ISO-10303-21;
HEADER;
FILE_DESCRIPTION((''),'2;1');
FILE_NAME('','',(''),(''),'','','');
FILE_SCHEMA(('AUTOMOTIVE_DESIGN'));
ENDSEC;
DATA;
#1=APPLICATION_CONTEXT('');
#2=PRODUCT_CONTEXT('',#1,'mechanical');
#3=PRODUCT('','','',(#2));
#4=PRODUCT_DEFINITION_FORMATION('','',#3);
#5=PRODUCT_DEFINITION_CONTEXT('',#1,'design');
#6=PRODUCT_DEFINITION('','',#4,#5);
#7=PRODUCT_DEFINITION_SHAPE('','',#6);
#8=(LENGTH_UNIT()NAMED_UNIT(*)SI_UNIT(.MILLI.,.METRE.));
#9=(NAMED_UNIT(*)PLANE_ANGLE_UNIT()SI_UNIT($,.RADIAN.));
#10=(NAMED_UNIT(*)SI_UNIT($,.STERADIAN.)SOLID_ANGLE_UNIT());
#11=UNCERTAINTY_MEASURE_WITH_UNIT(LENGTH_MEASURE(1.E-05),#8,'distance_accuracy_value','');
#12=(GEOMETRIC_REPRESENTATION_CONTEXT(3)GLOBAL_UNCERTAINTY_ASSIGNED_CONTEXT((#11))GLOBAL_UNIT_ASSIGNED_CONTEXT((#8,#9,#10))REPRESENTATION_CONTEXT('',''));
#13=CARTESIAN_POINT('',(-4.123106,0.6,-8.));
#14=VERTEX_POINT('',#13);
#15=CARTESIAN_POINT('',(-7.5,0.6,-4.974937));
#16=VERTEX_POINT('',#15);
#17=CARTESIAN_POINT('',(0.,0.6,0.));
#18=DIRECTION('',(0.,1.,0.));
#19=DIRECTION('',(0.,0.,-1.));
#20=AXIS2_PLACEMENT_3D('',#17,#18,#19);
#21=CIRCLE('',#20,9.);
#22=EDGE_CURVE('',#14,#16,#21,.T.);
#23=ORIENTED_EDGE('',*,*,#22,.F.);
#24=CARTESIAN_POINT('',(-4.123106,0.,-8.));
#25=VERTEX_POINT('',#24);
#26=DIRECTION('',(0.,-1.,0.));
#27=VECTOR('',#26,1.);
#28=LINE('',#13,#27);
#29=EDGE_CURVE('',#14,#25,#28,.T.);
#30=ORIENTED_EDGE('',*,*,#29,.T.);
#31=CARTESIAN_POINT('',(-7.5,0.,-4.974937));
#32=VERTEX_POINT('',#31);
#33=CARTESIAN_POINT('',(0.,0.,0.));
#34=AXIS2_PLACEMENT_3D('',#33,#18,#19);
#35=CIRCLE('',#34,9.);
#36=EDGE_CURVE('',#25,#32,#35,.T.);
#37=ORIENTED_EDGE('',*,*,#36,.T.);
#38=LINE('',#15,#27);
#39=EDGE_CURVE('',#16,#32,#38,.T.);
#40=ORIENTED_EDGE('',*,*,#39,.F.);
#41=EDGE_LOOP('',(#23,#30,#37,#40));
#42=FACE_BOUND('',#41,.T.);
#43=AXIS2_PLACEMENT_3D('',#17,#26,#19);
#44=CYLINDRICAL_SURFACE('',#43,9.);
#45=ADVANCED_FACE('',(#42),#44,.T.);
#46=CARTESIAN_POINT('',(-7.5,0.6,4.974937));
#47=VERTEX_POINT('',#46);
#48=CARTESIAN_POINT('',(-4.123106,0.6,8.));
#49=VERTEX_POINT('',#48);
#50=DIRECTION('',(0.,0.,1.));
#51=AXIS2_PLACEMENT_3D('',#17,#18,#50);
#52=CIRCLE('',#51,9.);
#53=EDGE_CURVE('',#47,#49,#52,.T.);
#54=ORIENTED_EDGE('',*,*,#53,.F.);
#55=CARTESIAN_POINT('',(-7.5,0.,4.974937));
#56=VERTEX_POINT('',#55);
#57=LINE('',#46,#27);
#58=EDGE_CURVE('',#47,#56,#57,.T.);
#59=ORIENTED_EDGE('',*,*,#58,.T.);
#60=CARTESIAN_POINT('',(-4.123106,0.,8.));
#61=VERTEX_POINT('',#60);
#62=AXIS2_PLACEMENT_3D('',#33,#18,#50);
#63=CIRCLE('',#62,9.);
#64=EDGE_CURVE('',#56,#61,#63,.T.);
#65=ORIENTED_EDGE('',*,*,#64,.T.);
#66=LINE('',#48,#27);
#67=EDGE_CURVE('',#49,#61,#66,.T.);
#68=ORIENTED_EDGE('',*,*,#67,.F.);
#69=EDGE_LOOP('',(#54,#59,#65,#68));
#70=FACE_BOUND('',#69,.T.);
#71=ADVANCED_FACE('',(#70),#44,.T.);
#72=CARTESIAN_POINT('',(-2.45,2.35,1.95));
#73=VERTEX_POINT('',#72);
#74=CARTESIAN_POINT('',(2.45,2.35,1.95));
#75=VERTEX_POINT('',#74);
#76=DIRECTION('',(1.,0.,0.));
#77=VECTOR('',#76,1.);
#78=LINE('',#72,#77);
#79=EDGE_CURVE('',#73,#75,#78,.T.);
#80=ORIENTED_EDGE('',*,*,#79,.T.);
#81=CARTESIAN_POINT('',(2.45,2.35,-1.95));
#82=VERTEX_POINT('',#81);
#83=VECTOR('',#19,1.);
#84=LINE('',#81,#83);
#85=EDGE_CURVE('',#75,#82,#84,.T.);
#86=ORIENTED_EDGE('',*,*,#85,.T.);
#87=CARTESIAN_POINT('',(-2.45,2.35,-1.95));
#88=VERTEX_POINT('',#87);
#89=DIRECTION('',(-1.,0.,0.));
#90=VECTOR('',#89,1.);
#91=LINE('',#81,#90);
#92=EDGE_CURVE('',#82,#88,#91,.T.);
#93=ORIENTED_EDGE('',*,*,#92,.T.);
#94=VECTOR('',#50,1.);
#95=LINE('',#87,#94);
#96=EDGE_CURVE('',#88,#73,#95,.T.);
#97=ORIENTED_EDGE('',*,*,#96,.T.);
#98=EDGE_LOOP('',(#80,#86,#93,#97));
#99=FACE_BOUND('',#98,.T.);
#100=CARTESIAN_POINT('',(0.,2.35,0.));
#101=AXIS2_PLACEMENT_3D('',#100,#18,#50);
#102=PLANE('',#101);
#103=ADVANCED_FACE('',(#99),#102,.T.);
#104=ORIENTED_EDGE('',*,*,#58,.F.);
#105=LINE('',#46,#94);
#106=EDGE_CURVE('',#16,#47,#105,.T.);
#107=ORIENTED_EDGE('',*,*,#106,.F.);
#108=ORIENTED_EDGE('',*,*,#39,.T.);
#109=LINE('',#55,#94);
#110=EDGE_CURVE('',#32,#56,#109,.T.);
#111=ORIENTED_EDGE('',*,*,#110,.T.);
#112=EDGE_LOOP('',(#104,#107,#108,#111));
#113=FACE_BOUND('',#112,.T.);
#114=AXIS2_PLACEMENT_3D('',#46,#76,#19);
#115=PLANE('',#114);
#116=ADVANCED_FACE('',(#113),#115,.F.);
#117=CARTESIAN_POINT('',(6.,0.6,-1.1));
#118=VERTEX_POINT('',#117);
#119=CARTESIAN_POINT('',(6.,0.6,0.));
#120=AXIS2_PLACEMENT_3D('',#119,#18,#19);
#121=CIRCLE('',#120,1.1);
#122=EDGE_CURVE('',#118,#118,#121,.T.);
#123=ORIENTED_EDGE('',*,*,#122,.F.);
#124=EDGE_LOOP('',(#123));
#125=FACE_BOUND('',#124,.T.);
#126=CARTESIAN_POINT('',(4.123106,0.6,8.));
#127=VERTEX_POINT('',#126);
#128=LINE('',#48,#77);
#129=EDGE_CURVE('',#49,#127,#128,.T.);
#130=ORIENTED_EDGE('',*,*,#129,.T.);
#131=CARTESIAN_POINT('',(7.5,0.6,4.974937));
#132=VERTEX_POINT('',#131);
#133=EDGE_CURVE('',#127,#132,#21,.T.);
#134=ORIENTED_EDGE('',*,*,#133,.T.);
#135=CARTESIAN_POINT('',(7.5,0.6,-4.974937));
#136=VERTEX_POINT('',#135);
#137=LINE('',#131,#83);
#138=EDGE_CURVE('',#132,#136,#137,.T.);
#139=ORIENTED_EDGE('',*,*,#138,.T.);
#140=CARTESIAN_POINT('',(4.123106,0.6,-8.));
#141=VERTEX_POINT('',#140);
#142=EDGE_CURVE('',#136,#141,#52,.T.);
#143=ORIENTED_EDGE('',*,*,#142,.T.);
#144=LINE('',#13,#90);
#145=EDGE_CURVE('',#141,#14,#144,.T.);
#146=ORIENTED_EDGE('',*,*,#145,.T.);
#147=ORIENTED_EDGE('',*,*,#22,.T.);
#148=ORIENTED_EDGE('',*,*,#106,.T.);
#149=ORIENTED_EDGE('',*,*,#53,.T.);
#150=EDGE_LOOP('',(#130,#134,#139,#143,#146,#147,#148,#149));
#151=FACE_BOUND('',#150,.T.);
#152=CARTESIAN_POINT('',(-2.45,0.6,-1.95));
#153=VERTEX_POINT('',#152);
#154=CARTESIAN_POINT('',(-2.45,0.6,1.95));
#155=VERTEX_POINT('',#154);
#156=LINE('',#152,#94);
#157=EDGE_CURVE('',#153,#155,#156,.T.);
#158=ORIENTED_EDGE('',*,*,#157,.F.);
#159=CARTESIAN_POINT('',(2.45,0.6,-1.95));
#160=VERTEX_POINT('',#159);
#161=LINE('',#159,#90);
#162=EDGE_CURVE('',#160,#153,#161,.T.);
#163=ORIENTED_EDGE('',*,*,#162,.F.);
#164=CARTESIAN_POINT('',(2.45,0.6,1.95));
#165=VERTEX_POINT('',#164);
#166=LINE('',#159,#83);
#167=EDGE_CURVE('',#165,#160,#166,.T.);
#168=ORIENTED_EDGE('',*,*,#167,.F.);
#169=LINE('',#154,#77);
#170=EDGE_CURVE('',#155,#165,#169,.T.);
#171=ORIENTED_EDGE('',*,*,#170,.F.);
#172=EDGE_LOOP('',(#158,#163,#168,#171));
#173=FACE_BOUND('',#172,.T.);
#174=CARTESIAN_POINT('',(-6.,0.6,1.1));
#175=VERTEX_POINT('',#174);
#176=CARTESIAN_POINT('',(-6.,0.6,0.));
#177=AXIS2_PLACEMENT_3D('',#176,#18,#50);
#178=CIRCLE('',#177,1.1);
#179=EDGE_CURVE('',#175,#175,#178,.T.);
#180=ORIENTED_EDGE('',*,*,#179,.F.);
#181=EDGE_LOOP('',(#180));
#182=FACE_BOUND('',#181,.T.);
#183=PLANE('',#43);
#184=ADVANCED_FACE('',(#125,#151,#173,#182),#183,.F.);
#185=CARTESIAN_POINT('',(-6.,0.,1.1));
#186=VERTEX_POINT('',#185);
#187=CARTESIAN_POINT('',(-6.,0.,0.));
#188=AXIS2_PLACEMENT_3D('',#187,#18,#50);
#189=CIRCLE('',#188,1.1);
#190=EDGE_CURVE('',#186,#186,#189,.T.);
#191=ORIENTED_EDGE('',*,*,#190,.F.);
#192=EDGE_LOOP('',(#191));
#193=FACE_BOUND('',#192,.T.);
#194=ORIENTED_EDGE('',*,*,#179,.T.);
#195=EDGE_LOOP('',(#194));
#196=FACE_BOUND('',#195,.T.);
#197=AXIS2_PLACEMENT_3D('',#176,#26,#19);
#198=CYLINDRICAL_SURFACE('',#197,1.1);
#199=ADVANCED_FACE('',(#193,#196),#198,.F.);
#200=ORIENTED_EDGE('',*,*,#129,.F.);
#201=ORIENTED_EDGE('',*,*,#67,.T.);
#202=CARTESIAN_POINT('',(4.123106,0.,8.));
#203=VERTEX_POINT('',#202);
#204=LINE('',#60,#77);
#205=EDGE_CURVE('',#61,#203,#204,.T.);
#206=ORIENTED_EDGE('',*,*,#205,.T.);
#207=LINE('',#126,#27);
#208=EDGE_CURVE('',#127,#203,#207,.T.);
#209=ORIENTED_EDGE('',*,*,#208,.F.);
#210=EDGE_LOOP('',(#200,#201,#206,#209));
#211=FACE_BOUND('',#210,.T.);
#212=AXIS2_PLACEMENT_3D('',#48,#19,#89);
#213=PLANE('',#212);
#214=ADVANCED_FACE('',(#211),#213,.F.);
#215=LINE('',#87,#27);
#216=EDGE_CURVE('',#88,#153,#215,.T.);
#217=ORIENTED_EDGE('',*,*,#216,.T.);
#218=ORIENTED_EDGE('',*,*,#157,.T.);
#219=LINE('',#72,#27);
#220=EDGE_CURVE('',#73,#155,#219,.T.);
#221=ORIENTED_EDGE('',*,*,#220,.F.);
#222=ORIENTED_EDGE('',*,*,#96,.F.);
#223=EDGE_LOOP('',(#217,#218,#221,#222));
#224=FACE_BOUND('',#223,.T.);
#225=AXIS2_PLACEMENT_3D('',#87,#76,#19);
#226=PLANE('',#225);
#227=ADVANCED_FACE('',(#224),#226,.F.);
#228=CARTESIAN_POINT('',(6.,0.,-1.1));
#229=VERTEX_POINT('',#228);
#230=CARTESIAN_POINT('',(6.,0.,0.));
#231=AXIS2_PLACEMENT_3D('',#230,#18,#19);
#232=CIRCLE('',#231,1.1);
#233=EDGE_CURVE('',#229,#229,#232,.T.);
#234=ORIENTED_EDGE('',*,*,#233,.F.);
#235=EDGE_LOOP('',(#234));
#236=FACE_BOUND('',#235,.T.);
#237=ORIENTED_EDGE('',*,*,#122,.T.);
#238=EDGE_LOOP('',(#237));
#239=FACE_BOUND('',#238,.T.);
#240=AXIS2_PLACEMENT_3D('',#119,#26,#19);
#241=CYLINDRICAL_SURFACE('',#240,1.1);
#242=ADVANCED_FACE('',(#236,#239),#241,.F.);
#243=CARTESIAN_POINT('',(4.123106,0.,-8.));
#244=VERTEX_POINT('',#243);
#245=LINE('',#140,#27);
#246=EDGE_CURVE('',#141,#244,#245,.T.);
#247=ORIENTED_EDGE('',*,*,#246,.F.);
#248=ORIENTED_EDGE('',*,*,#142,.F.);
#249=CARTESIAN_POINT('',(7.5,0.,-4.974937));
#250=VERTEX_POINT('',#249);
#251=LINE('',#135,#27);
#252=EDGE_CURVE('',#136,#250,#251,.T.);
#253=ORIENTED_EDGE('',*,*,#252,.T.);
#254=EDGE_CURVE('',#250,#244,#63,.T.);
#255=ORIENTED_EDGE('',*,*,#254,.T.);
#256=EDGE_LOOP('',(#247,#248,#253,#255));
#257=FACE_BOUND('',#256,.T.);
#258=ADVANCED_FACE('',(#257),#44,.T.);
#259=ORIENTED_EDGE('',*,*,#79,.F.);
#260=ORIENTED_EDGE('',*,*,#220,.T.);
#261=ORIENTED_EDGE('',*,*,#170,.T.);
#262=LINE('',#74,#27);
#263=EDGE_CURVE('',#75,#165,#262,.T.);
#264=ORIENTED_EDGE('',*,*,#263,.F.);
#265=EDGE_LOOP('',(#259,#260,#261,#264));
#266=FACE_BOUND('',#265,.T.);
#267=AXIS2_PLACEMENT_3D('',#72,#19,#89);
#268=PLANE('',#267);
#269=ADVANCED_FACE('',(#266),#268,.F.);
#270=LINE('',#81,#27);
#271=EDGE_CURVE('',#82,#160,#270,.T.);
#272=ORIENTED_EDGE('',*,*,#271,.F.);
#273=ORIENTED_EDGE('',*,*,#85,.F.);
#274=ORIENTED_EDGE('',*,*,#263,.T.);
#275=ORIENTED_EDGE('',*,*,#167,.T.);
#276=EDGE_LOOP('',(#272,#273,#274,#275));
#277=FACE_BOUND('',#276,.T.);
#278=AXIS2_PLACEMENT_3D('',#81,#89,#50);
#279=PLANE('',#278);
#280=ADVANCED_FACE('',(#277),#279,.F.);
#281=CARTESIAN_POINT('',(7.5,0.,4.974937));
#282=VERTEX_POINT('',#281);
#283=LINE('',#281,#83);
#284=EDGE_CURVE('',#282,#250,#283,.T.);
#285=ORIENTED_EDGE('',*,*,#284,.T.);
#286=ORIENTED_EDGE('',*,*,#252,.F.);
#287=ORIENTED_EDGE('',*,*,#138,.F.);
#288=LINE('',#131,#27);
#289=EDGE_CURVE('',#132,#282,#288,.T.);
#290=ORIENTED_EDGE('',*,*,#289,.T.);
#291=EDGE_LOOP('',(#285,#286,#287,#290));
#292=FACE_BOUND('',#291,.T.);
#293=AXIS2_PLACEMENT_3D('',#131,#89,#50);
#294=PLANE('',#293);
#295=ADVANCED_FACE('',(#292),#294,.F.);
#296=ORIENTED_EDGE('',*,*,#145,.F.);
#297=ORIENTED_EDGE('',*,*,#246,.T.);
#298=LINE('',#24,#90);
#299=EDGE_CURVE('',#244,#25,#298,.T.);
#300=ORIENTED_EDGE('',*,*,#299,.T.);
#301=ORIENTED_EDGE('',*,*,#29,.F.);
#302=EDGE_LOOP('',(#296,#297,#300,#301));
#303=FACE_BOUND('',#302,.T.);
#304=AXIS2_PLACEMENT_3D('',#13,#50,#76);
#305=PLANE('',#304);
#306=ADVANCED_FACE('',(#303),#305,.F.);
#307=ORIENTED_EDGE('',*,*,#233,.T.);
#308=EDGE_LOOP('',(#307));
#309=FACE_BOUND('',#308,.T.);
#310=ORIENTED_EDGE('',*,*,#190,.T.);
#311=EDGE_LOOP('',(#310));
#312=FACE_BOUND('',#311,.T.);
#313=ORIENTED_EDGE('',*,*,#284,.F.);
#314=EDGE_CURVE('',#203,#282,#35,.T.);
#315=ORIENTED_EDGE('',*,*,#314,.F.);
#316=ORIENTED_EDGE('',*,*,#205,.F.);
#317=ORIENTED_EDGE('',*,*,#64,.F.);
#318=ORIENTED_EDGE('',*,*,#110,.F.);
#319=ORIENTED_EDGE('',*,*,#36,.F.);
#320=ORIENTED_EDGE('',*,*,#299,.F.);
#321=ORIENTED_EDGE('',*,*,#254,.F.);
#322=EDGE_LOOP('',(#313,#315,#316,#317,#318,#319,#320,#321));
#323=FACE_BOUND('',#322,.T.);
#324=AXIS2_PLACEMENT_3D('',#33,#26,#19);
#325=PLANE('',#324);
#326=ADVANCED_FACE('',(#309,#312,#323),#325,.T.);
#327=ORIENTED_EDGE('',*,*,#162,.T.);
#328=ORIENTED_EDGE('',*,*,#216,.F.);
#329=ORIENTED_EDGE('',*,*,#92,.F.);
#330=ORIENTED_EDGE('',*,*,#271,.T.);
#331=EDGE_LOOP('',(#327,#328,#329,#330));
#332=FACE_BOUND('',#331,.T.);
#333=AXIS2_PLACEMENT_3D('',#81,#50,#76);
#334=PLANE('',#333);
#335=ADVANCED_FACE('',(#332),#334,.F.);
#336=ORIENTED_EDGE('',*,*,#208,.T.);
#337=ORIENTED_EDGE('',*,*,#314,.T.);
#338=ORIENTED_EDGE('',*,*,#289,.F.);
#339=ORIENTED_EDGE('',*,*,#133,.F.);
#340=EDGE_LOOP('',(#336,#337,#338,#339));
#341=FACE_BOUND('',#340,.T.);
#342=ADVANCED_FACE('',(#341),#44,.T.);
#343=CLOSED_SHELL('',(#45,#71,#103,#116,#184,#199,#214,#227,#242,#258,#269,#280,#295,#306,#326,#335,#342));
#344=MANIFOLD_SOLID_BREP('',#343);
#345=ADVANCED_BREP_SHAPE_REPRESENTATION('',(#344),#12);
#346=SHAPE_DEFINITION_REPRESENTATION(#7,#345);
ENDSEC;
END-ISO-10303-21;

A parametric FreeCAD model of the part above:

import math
import FreeCAD as App
import Part
import Sketcher

V = App.Vector


def add_polygon(sketch, points):
    """Adds a closed chain of lines whose ends are joined by coincident constraints."""
    first, n = sketch.GeometryCount, len(points)
    for a, b in zip(points, points[1:] + points[:1]):
        sketch.addGeometry(Part.LineSegment(App.Vector(*a, 0), App.Vector(*b, 0)), False)
    for i in range(n):
        sketch.addConstraint(Sketcher.Constraint("Coincident", first + i, 2, first + (i + 1) % n, 1))

doc = App.newDocument("Part")
params = doc.addObject("Spreadsheet::Sheet", "Params")
for row, (alias, value) in enumerate([
    ("sketch1_radius", "9 mm"),
    ("sketch1_diameter", "2.2 mm"),
    ("pad1_length", "0.6 mm"),
    ("sketch2_width", "4.9 mm"),
    ("sketch2_height", "3.9 mm"),
    ("pad2_length", "1.75 mm"),
], start=1):
    params.set(f"A{row}", alias)
    params.set(f"B{row}", "=" + value)
    params.setAlias(f"B{row}", alias)

body = doc.addObject("PartDesign::Body", "Body")

# Sketch on XZ plane
sketch1 = body.newObject("Sketcher::SketchObject", "Sketch")
sketch1.AttachmentSupport = (doc.getObject("XZ_Plane"), [""])
sketch1.MapMode = "FlatFace"
sketch1.addGeometry(Part.LineSegment(V(4.123106, -8, 0), V(-4.123106, -8, 0)), False)
sketch1.addGeometry(Part.ArcOfCircle(Part.Circle(V(0, 0, 0), V(0, 0, 1), 9), math.radians(-146.44269), math.radians(-117.266044)), False)
sketch1.addGeometry(Part.LineSegment(V(-7.5, -4.974937, 0), V(-7.5, 4.974937, 0)), False)
sketch1.addGeometry(Part.ArcOfCircle(Part.Circle(V(0, 0, 0), V(0, 0, 1), 9), math.radians(117.266044), math.radians(146.44269)), False)
sketch1.addGeometry(Part.LineSegment(V(-4.123106, 8, 0), V(4.123106, 8, 0)), False)
sketch1.addGeometry(Part.ArcOfCircle(Part.Circle(V(0, 0, 0), V(0, 0, 1), 9), math.radians(33.55731), math.radians(62.733956)), False)
sketch1.addGeometry(Part.LineSegment(V(7.5, 4.974937, 0), V(7.5, -4.974937, 0)), False)
sketch1.addGeometry(Part.ArcOfCircle(Part.Circle(V(0, 0, 0), V(0, 0, 1), 9), math.radians(-62.733956), math.radians(-33.55731)), False)
sketch1.addGeometry(Part.Circle(V(6, 0, 0), V(0, 0, 1), 1.1), False)
sketch1.addGeometry(Part.Circle(V(-6, 0, 0), V(0, 0, 1), 1.1), False)
sketch1.addConstraint(Sketcher.Constraint("Coincident", 0, 2, 1, 2))
sketch1.addConstraint(Sketcher.Constraint("Coincident", 1, 1, 2, 1))
sketch1.addConstraint(Sketcher.Constraint("Coincident", 2, 2, 3, 2))
sketch1.addConstraint(Sketcher.Constraint("Coincident", 3, 1, 4, 1))
sketch1.addConstraint(Sketcher.Constraint("Coincident", 4, 2, 5, 2))
sketch1.addConstraint(Sketcher.Constraint("Coincident", 5, 1, 6, 1))
sketch1.addConstraint(Sketcher.Constraint("Coincident", 6, 2, 7, 2))
sketch1.addConstraint(Sketcher.Constraint("Coincident", 7, 1, 0, 1))
sketch1.addConstraint(Sketcher.Constraint("Horizontal", 0))
sketch1.addConstraint(Sketcher.Constraint("Vertical", 2))
sketch1.addConstraint(Sketcher.Constraint("Horizontal", 4))
sketch1.addConstraint(Sketcher.Constraint("Vertical", 6))
sketch1.addConstraint(Sketcher.Constraint("Coincident", 1, 3, -1, 1))
sketch1.addConstraint(Sketcher.Constraint("Coincident", 3, 3, -1, 1))
sketch1.addConstraint(Sketcher.Constraint("Coincident", 5, 3, -1, 1))
sketch1.addConstraint(Sketcher.Constraint("Coincident", 7, 3, -1, 1))
sketch1.addConstraint(Sketcher.Constraint("Equal", 1, 3))
sketch1.addConstraint(Sketcher.Constraint("Equal", 3, 5))
sketch1.addConstraint(Sketcher.Constraint("Equal", 5, 7))
sketch1.addConstraint(Sketcher.Constraint("Equal", 8, 9))
sketch1.addConstraint(Sketcher.Constraint("Symmetric", 8, 3, 9, 3, -1, 1))
sketch1.addConstraint(Sketcher.Constraint("PointOnObject", 8, 3, -1))
sketch1.addConstraint(Sketcher.Constraint("Horizontal", 2, 2, 5, 1))
sketch1.addConstraint(Sketcher.Constraint("Vertical", 0, 2, 3, 1))
sketch1.addConstraint(Sketcher.Constraint("Radius", 1, 9.0))
sketch1.addConstraint(Sketcher.Constraint("Diameter", 8, 2.2))
sketch1.addConstraint(Sketcher.Constraint("DistanceX", -1, 1, 8, 3, 6.0))
sketch1.addConstraint(Sketcher.Constraint("DistanceY", 0, 2, -1, 1, 8.0))
sketch1.addConstraint(Sketcher.Constraint("DistanceX", 1, 1, -1, 1, 7.5))
sketch1.setExpression("Constraints[24]", "Params.sketch1_radius")
sketch1.setExpression("Constraints[25]", "Params.sketch1_diameter")
pad1 = body.newObject("PartDesign::Pad", "Pad")
pad1.Profile = sketch1
pad1.setExpression("Length", "Params.pad1_length")
pad1.Reversed = True

# Sketch on XZ plane
sketch2 = body.newObject("Sketcher::SketchObject", "Sketch001")
sketch2.AttachmentSupport = (doc.getObject("XZ_Plane"), [""])
sketch2.MapMode = "FlatFace"
sketch2.AttachmentOffset = App.Placement(V(0, 0, -0.6), App.Rotation())
add_polygon(sketch2, [(-2.45, -1.95), (-2.45, 1.95), (2.45, 1.95), (2.45, -1.95)])  # lines 0-3
sketch2.addConstraint(Sketcher.Constraint("Vertical", 0))
sketch2.addConstraint(Sketcher.Constraint("Horizontal", 1))
sketch2.addConstraint(Sketcher.Constraint("Vertical", 2))
sketch2.addConstraint(Sketcher.Constraint("Horizontal", 3))
sketch2.addConstraint(Sketcher.Constraint("Symmetric", 0, 2, 2, 2, -1, 1))
sketch2.addConstraint(Sketcher.Constraint("DistanceX", 1, 1, 1, 2, 4.9))
sketch2.addConstraint(Sketcher.Constraint("DistanceY", 0, 1, 0, 2, 3.9))
sketch2.setExpression("Constraints[9]", "Params.sketch2_width")
sketch2.setExpression("Constraints[10]", "Params.sketch2_height")
pad2 = body.newObject("PartDesign::Pad", "Pad001")
pad2.Profile = sketch2
pad2.setExpression("Length", "Params.pad2_length")
pad2.Reversed = True

doc.recompute()
